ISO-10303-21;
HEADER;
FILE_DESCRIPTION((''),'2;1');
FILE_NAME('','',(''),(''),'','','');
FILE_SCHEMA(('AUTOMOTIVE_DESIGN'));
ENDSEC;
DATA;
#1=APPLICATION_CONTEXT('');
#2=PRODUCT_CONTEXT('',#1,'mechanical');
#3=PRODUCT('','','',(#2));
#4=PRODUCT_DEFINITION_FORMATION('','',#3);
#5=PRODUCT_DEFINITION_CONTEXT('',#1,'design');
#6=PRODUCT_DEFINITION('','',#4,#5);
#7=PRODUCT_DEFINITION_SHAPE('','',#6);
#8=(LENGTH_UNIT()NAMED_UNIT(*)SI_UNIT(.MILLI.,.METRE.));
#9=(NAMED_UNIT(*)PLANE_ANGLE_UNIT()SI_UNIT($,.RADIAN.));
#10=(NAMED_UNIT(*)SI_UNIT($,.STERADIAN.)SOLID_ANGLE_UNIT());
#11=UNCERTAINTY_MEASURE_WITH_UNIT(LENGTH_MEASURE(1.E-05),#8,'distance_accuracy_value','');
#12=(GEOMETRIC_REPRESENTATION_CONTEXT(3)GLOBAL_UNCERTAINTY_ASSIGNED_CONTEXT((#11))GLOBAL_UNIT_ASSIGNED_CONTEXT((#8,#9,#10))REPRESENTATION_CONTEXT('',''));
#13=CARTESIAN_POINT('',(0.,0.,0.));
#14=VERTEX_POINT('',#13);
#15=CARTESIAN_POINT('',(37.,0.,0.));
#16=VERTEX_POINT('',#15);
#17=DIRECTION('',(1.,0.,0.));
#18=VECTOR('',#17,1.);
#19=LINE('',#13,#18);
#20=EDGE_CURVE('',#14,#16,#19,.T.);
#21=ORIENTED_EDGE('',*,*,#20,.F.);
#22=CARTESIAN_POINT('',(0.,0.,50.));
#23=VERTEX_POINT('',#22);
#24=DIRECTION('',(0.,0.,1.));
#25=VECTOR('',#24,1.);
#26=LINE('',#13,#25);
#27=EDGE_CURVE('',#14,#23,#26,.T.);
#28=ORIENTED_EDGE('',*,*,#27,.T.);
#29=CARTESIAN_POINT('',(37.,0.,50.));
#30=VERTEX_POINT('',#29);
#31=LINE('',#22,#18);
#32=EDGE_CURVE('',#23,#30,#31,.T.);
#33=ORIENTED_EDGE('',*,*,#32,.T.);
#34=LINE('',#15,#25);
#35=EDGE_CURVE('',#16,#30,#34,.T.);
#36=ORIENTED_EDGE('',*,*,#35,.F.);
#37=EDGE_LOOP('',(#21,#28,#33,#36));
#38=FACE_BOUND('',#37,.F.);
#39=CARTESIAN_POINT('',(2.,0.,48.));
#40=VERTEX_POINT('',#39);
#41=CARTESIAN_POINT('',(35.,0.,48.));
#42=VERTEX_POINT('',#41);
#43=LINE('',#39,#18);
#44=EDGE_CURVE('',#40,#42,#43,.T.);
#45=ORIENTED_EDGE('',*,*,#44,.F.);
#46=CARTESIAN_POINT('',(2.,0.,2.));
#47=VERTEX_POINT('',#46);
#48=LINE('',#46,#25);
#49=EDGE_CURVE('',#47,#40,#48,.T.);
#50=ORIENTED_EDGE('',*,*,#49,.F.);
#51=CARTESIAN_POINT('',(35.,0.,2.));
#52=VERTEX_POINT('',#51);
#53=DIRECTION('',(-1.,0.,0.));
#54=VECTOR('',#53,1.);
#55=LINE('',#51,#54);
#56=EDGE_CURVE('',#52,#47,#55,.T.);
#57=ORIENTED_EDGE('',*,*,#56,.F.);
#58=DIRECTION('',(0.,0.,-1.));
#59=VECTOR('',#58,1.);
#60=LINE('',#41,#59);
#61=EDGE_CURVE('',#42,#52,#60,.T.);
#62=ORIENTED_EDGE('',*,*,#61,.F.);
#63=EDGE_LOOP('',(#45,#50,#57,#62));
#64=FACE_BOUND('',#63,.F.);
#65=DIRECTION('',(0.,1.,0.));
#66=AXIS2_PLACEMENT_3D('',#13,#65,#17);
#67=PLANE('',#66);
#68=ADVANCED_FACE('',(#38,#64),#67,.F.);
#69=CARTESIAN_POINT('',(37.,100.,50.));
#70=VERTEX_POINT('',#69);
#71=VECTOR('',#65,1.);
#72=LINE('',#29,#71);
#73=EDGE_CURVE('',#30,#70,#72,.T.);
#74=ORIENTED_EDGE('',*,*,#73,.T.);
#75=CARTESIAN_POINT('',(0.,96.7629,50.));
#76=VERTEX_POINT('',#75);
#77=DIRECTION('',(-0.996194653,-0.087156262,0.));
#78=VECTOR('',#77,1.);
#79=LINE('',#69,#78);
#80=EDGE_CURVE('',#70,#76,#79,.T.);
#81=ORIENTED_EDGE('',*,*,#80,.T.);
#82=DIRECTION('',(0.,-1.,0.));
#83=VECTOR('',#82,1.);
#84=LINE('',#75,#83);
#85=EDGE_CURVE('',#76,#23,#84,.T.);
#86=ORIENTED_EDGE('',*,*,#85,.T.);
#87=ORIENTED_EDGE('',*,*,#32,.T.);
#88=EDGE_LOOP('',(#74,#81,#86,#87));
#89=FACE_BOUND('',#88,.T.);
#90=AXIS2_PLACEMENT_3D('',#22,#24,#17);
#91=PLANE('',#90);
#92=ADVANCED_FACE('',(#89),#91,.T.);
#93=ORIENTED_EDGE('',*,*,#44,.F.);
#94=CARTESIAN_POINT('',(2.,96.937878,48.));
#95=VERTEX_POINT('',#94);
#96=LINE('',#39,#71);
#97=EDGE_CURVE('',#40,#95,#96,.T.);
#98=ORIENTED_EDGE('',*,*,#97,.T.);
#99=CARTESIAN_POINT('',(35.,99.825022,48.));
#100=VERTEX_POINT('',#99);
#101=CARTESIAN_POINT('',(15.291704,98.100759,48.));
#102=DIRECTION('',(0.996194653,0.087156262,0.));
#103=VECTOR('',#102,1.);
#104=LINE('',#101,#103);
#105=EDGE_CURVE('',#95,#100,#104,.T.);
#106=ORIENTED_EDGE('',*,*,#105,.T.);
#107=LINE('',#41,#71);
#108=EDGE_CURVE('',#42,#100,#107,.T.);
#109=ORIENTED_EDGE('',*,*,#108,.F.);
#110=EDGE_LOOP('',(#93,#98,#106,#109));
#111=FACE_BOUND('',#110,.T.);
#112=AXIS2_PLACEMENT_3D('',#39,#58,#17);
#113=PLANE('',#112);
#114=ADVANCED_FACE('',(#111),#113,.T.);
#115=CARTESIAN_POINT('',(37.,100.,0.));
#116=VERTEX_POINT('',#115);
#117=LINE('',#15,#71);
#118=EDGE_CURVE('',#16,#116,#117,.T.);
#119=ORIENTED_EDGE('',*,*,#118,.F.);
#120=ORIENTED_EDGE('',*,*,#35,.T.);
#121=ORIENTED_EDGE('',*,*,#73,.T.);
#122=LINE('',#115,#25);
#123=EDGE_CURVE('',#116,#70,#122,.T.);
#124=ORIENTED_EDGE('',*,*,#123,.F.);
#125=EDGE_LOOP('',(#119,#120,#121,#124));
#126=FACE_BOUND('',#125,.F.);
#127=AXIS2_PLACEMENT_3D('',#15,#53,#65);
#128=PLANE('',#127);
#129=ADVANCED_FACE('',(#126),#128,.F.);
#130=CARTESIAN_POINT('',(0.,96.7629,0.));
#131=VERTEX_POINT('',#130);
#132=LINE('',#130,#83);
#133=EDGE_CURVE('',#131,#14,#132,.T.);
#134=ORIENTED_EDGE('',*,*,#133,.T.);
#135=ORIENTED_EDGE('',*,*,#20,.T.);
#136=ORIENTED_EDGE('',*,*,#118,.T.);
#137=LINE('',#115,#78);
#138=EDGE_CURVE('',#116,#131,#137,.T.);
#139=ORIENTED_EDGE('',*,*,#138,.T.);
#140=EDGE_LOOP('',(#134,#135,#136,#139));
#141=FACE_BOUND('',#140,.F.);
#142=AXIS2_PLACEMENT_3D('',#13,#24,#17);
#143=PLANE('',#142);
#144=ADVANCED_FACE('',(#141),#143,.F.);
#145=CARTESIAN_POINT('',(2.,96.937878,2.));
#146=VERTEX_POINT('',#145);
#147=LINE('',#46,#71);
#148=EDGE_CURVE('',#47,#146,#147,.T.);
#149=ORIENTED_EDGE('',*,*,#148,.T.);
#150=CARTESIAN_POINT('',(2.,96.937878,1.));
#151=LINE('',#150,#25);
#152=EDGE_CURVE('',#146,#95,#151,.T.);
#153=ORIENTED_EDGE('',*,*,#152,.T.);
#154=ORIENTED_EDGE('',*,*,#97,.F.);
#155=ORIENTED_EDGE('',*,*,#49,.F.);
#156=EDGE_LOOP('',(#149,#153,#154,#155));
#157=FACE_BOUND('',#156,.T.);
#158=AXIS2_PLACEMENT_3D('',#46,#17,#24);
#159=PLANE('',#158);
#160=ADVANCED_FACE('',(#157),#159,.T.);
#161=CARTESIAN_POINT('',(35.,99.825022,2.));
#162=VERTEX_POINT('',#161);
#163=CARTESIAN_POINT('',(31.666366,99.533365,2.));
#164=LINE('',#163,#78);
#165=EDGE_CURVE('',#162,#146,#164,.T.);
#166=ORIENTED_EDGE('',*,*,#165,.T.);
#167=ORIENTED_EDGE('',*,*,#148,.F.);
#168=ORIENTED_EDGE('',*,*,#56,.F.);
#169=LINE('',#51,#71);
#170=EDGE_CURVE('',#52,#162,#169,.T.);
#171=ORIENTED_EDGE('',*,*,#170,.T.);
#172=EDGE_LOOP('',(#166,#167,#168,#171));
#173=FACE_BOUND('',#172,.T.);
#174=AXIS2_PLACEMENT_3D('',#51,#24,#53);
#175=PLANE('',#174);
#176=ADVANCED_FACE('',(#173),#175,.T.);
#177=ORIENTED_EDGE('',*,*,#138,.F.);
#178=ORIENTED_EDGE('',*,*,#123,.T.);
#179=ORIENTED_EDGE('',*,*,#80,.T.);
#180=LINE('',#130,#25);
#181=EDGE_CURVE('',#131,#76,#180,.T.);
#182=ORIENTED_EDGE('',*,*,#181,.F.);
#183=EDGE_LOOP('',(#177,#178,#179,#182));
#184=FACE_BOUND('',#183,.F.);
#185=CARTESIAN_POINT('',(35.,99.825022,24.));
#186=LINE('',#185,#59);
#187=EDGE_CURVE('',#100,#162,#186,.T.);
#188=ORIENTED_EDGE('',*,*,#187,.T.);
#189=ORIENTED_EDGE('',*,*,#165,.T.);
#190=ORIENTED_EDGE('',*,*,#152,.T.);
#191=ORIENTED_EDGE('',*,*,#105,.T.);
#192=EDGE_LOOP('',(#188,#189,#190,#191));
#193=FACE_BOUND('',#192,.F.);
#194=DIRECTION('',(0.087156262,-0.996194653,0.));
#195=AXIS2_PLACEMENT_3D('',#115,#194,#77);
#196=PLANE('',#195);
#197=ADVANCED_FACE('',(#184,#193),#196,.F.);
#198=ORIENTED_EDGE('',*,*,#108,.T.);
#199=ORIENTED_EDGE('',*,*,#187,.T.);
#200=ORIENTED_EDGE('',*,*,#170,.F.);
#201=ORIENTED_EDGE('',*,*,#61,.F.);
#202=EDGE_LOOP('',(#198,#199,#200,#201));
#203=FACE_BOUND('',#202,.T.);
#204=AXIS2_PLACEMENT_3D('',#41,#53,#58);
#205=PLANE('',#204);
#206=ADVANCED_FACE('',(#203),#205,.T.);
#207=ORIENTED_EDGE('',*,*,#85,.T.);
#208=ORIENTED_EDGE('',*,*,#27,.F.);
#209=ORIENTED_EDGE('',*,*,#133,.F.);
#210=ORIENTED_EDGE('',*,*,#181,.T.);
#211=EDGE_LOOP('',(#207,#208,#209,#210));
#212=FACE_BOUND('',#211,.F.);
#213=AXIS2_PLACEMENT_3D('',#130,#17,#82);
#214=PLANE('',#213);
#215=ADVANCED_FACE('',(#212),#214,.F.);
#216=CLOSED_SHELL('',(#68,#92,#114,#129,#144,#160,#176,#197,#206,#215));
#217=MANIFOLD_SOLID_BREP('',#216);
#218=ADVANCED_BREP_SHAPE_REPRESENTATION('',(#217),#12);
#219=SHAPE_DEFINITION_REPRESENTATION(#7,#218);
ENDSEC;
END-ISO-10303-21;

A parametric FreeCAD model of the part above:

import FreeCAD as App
import Part
import Sketcher
Q = App.Units.Quantity

doc = App.newDocument("Part")
body = doc.addObject("PartDesign::Body", "Body")

# Sketch on XY plane
sketch1 = doc.addObject("Sketcher::SketchObject", "Sketch")
body.addObject(sketch1)
sketch1.AttachmentSupport = (doc.XY_Plane, [""])
sketch1.MapMode = "FlatFace"
sketch1.addGeometry(Part.LineSegment(App.Vector(0, 97, 0), App.Vector(0, 0, 0)), False)
sketch1.addGeometry(Part.LineSegment(App.Vector(0, 0, 0), App.Vector(37, 0, 0)), False)
sketch1.addGeometry(Part.LineSegment(App.Vector(37, 0, 0), App.Vector(37, 100, 0)), False)
sketch1.addGeometry(Part.LineSegment(App.Vector(37, 100, 0), App.Vector(0, 97, 0)), False)
sketch1.addConstraint(Sketcher.Constraint("Coincident", 0, 2, 1, 1))
sketch1.addConstraint(Sketcher.Constraint("Coincident", 1, 2, 2, 1))
sketch1.addConstraint(Sketcher.Constraint("Coincident", 2, 2, 3, 1))
sketch1.addConstraint(Sketcher.Constraint("Coincident", 3, 2, 0, 1))
sketch1.addConstraint(Sketcher.Constraint("Vertical", 0))
sketch1.addConstraint(Sketcher.Constraint("Horizontal", 1))
sketch1.addConstraint(Sketcher.Constraint("Vertical", 2))
sketch1.addConstraint(Sketcher.Constraint("Coincident", 0, 2, -1, 1))
sketch1.addConstraint(Sketcher.Constraint("DistanceX", 1, 1, 1, 2, 37.0))
sketch1.addConstraint(Sketcher.Constraint("DistanceY", 2, 1, 2, 2, 100.0))
sketch1.addConstraint(Sketcher.Constraint("Angle", 3, Q("-175 deg")))
pad1 = doc.addObject("PartDesign::Pad", "Pad")
body.addObject(pad1)
pad1.Profile = sketch1
pad1.Length = 50

# Sketch on XZ plane
sketch2 = doc.addObject("Sketcher::SketchObject", "Sketch001")
body.addObject(sketch2)
sketch2.AttachmentSupport = (doc.XZ_Plane, [""])
sketch2.MapMode = "FlatFace"
sketch2.addGeometry(Part.LineSegment(App.Vector(35, 2, 0), App.Vector(35, 48, 0)), False)
sketch2.addGeometry(Part.LineSegment(App.Vector(35, 48, 0), App.Vector(2, 48, 0)), False)
sketch2.addGeometry(Part.LineSegment(App.Vector(2, 48, 0), App.Vector(2, 2, 0)), False)
sketch2.addGeometry(Part.LineSegment(App.Vector(2, 2, 0), App.Vector(35, 2, 0)), False)
sketch2.addConstraint(Sketcher.Constraint("Coincident", 0, 2, 1, 1))
sketch2.addConstraint(Sketcher.Constraint("Coincident", 1, 2, 2, 1))
sketch2.addConstraint(Sketcher.Constraint("Coincident", 2, 2, 3, 1))
sketch2.addConstraint(Sketcher.Constraint("Coincident", 3, 2, 0, 1))
sketch2.addConstraint(Sketcher.Constraint("Vertical", 0))
sketch2.addConstraint(Sketcher.Constraint("Horizontal", 1))
sketch2.addConstraint(Sketcher.Constraint("Vertical", 2))
sketch2.addConstraint(Sketcher.Constraint("Horizontal", 3))
sketch2.addConstraint(Sketcher.Constraint("DistanceX", 1, 2, 1, 1, 33.0))
sketch2.addConstraint(Sketcher.Constraint("DistanceY", 0, 1, 0, 2, 46.0))
sketch2.addConstraint(Sketcher.Constraint("DistanceX", -1, 1, 0, 2, 35.0))
sketch2.addConstraint(Sketcher.Constraint("DistanceY", -1, 1, 0, 2, 48.0))
pocket1 = doc.addObject("PartDesign::Pocket", "Pocket")
body.addObject(pocket1)
pocket1.Profile = sketch2
pocket1.Length = 100

doc.recompute()
